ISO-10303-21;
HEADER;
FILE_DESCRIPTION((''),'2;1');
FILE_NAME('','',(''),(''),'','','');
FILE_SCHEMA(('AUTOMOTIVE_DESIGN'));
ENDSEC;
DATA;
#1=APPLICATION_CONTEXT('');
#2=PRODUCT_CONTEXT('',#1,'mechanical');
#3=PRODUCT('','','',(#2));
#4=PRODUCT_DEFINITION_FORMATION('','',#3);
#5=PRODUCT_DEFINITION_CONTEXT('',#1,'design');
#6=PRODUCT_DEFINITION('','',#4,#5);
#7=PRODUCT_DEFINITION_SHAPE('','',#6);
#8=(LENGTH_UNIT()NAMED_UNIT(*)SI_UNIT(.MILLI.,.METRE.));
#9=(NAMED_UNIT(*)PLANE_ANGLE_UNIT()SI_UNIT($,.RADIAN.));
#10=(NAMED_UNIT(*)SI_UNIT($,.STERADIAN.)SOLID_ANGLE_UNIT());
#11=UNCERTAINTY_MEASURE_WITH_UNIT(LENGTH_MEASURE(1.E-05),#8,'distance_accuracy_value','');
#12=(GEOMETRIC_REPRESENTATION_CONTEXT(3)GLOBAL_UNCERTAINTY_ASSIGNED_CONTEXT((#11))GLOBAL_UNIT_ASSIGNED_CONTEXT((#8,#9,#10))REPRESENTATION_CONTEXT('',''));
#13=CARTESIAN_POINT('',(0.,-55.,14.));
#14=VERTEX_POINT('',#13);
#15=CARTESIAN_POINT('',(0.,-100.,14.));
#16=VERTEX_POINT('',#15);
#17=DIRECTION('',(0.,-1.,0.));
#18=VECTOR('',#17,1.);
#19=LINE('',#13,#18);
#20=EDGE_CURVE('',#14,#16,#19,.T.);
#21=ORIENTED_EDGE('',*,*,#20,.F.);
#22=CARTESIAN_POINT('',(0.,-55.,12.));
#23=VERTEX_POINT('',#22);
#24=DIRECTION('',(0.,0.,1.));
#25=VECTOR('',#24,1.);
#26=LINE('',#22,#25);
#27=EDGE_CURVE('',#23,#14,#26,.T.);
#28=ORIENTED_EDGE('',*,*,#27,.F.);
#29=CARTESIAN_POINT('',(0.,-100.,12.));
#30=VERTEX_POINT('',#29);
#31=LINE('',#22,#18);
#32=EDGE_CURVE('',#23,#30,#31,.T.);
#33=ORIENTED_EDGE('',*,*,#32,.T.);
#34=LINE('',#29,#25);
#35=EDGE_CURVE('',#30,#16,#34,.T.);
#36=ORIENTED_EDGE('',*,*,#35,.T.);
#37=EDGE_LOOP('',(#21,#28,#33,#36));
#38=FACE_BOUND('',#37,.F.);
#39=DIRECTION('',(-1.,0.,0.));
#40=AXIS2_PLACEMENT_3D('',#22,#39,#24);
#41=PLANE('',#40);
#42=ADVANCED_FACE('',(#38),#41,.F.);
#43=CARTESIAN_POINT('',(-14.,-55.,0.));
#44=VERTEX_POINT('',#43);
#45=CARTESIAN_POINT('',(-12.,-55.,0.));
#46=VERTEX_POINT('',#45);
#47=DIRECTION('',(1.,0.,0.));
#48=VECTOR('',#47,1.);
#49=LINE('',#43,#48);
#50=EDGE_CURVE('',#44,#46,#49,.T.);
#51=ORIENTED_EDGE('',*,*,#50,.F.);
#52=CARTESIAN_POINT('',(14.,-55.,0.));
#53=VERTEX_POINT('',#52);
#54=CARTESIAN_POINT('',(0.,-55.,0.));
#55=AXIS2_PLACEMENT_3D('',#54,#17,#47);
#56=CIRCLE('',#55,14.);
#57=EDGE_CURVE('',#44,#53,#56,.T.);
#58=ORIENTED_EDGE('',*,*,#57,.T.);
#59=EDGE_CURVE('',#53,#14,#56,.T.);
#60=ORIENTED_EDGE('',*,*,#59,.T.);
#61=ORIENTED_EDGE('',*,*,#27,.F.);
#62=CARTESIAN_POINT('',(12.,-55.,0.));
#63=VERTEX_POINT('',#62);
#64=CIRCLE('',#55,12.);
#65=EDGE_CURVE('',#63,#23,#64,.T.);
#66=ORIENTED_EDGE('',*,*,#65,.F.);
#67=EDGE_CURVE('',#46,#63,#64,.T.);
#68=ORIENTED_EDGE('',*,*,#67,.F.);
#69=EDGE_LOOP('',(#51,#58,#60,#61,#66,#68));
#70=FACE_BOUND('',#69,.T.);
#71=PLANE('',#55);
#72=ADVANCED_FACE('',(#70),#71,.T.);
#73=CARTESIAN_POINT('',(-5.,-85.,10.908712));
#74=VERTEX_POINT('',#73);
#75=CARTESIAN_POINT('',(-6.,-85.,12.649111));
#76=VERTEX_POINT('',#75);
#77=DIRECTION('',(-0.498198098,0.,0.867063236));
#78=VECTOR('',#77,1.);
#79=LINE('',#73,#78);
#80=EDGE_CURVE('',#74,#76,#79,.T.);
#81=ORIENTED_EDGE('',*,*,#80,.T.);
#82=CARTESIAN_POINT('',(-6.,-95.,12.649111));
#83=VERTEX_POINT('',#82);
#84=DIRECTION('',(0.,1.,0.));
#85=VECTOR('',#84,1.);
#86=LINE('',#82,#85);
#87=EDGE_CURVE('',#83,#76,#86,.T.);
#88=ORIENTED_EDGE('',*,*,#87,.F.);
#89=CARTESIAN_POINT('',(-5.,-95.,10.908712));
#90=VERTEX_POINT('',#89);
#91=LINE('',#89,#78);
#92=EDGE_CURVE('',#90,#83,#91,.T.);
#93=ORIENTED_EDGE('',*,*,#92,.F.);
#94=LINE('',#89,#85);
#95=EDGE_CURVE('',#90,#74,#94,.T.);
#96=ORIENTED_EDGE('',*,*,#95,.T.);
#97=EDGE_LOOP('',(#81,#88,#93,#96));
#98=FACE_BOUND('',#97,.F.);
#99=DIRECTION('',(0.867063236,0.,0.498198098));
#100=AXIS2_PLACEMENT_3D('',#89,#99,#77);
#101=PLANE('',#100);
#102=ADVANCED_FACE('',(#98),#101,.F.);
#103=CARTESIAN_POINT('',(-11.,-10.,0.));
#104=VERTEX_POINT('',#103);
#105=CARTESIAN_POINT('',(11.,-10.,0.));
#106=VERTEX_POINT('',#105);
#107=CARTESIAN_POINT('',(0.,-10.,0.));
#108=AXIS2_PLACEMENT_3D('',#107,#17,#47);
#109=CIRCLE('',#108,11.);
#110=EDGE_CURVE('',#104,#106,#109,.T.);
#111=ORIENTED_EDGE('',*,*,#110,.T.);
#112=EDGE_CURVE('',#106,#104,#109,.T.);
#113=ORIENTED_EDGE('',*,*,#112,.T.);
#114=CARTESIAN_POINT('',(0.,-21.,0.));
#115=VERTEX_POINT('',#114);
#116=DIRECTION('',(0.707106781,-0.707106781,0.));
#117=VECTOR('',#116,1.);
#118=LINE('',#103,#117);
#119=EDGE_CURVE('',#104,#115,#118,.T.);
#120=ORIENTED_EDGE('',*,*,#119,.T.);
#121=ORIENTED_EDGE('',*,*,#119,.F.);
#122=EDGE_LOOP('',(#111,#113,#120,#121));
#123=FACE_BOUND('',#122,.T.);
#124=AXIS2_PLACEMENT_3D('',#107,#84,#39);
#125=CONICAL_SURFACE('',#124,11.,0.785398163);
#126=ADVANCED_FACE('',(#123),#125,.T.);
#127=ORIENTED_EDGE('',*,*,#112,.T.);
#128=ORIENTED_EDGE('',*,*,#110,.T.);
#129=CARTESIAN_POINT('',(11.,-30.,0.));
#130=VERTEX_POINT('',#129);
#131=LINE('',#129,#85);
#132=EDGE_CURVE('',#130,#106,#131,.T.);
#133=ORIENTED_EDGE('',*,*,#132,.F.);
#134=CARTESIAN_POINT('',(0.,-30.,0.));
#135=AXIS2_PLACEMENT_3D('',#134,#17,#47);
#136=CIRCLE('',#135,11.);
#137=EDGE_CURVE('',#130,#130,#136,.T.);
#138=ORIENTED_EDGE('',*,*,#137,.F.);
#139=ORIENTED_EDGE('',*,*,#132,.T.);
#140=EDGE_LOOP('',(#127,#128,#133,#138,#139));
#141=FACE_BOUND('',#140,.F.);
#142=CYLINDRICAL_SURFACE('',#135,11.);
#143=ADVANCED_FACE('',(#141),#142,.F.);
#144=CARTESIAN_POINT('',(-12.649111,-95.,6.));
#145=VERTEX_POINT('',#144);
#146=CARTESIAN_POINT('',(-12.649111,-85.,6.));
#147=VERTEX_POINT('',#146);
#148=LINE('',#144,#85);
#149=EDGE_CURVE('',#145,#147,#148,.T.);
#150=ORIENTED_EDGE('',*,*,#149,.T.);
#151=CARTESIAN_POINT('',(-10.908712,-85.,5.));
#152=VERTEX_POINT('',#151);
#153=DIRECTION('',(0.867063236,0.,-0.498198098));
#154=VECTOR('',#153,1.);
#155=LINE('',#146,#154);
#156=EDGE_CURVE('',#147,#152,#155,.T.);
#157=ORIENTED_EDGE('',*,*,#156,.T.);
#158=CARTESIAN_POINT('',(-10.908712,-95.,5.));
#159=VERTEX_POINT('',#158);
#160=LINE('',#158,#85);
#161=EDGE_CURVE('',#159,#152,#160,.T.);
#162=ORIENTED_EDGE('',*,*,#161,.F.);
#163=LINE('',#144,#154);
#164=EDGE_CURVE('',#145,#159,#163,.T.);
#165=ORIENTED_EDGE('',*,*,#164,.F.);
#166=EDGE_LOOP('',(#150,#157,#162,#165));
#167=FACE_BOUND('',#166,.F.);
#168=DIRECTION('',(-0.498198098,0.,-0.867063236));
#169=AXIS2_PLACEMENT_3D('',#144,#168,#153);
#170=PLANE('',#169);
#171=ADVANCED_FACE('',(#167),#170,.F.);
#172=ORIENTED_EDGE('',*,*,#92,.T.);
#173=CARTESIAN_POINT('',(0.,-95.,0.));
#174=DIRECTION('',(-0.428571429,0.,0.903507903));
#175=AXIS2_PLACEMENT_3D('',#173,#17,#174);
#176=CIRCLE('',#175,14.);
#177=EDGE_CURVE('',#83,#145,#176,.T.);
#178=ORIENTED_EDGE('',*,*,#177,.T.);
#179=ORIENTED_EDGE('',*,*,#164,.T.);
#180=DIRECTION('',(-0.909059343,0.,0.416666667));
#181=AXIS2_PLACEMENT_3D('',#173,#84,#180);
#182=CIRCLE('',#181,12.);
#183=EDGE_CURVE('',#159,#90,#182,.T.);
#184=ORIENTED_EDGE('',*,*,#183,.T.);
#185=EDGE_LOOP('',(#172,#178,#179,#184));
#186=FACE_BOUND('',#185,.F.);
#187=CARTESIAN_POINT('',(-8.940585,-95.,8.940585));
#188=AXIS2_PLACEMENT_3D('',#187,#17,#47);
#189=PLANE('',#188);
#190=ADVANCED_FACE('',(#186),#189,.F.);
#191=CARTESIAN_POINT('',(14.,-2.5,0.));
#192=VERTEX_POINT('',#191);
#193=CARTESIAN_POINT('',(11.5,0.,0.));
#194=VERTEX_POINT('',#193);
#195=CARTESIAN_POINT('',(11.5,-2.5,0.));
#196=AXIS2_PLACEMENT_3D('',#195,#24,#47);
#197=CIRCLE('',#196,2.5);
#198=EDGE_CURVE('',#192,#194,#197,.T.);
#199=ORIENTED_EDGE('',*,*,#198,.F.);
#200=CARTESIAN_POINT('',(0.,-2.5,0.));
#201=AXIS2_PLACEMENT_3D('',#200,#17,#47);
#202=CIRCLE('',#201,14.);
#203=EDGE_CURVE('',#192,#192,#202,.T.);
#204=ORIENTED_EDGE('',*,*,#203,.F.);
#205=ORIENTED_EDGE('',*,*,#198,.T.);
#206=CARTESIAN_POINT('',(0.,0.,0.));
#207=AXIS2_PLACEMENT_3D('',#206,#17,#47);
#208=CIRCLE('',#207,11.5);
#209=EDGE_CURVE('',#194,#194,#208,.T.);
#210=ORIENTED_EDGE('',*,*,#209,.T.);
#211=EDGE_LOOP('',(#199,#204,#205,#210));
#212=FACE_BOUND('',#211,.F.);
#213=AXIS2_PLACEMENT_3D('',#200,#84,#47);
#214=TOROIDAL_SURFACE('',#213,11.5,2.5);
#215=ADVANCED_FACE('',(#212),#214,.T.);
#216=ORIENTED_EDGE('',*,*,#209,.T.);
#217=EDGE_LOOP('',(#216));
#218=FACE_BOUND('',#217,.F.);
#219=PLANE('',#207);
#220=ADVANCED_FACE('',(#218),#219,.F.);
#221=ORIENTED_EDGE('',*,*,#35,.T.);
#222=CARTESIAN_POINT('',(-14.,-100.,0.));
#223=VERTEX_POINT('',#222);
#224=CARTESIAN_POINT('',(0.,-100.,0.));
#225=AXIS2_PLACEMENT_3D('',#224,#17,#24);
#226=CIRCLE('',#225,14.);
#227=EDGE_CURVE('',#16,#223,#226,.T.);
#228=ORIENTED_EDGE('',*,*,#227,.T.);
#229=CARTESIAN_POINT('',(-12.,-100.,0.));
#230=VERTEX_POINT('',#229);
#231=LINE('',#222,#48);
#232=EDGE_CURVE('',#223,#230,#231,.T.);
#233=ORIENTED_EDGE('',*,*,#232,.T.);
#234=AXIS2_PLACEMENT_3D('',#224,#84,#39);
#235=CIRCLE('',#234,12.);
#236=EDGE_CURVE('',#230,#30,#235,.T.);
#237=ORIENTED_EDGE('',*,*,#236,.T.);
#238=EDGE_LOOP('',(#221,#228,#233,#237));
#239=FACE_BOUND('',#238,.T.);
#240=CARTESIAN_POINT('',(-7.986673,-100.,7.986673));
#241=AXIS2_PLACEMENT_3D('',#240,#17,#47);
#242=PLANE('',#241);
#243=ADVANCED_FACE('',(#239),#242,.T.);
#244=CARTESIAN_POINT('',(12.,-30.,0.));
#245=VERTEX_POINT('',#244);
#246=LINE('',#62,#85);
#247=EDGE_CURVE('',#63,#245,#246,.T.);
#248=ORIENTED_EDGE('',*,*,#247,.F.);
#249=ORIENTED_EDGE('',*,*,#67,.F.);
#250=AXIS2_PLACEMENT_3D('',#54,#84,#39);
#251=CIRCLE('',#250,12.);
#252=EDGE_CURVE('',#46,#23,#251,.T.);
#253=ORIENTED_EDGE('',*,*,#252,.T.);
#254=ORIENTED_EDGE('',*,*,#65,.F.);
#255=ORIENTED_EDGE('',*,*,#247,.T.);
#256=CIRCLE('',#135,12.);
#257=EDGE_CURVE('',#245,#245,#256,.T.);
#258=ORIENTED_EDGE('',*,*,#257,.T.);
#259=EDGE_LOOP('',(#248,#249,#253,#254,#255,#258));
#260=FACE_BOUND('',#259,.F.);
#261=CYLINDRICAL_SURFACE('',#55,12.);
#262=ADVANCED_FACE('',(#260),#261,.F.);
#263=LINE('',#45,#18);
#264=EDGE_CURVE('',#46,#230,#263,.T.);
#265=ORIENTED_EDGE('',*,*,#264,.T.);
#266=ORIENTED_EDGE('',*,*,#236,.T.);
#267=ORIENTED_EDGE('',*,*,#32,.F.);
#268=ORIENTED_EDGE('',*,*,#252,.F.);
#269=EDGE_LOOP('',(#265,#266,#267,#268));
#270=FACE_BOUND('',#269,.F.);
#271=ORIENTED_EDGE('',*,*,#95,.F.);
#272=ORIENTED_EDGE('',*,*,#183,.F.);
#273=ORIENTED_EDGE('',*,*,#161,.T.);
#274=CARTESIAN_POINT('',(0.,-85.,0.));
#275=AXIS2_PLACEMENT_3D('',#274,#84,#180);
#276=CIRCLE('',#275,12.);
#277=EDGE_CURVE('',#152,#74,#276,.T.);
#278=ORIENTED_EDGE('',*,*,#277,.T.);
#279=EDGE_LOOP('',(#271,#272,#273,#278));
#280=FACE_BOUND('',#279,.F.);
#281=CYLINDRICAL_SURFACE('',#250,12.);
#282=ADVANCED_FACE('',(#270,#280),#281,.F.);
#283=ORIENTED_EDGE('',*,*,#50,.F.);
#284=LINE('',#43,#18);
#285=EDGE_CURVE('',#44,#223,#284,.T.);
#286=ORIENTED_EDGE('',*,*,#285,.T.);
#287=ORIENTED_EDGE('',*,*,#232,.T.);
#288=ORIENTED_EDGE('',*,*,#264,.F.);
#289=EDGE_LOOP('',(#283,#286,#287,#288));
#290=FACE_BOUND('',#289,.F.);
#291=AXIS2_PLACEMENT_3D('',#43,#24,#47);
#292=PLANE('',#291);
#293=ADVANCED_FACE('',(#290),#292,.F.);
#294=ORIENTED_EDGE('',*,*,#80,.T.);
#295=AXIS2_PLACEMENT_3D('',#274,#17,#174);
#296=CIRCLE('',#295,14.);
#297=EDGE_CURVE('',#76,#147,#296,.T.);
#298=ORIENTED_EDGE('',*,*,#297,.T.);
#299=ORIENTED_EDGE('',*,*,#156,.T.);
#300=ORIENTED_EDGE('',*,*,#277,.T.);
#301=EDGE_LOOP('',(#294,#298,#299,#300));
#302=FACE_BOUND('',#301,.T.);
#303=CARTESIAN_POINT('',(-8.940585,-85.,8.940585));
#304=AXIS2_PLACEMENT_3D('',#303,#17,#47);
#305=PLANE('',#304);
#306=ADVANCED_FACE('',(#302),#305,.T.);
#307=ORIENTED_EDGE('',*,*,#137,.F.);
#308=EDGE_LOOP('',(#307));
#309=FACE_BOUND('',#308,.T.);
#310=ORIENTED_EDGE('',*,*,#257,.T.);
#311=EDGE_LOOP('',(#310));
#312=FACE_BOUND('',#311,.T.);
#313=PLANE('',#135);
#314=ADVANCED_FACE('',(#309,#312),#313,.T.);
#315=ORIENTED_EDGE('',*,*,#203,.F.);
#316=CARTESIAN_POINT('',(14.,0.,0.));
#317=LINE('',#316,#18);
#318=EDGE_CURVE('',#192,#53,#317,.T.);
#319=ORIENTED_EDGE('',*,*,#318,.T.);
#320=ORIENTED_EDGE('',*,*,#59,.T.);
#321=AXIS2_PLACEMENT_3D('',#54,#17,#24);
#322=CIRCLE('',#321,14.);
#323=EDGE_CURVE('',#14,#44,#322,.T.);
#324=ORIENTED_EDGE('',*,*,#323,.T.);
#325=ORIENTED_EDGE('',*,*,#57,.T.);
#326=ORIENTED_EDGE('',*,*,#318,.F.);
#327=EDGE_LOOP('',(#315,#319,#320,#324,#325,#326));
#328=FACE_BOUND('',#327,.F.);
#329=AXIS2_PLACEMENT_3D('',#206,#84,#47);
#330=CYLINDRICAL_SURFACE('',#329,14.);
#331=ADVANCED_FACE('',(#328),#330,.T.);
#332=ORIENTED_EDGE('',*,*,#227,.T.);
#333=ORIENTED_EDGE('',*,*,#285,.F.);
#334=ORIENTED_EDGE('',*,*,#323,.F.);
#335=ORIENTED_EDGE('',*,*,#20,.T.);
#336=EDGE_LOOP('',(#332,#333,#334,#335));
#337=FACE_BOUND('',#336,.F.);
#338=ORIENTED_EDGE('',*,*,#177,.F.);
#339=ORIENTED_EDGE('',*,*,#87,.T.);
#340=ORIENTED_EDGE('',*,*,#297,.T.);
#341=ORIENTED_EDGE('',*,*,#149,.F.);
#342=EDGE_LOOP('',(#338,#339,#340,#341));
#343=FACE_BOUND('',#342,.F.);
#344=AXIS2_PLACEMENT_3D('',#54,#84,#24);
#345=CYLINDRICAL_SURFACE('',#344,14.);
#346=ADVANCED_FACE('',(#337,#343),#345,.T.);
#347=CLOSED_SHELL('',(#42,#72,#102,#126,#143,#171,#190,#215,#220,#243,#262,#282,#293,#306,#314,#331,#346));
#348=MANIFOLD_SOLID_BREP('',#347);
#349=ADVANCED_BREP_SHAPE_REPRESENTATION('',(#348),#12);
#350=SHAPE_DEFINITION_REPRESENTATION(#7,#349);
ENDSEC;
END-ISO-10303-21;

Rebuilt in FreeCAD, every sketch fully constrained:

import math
import FreeCAD as App
import Part
import Sketcher

V = App.Vector
Q = App.Units.Quantity


def edges_at(feature, points):
    """Names of the edges that pass closest to the given points."""
    edges = feature.Shape.Edges
    near = lambda p: min(range(len(edges)), key=lambda i: edges[i].distToShape(Part.Vertex(*p))[0])
    return sorted({f"Edge{near(p) + 1}" for p in points})


def add_polygon(sketch, points):
    """Adds a closed chain of lines whose ends are joined by coincident constraints."""
    first, n = sketch.GeometryCount, len(points)
    for a, b in zip(points, points[1:] + points[:1]):
        sketch.addGeometry(Part.LineSegment(App.Vector(*a, 0), App.Vector(*b, 0)), False)
    for i in range(n):
        sketch.addConstraint(Sketcher.Constraint("Coincident", first + i, 2, first + (i + 1) % n, 1))

doc = App.newDocument("Part")
body = doc.addObject("PartDesign::Body", "Body")

# Sketch on XZ plane
sketch1 = doc.addObject("Sketcher::SketchObject", "Sketch")
body.addObject(sketch1)
sketch1.AttachmentSupport = (doc.XZ_Plane, [""])
sketch1.MapMode = "FlatFace"
sketch1.addGeometry(Part.Circle(V(0, 0, 0), V(0, 0, 1), 14), False)
sketch1.addConstraint(Sketcher.Constraint("Coincident", 0, 3, -1, 1))
sketch1.addConstraint(Sketcher.Constraint("Diameter", 0, Q("28 mm")))
pad1 = doc.addObject("PartDesign::Pad", "Pad")
body.addObject(pad1)
pad1.Profile = sketch1
pad1.Length = 55

# Sketch on XZ plane
sketch2 = doc.addObject("Sketcher::SketchObject", "Sketch001")
body.addObject(sketch2)
sketch2.AttachmentSupport = (doc.XZ_Plane, [""])
sketch2.MapMode = "FlatFace"
sketch2.AttachmentOffset = App.Placement(V(0, 0, 55), App.Rotation())
sketch2.addGeometry(Part.Circle(V(0, 0, 0), V(0, 0, 1), 12), False)
sketch2.addConstraint(Sketcher.Constraint("Coincident", 0, 3, -1, 1))
sketch2.addConstraint(Sketcher.Constraint("Diameter", 0, Q("24 mm")))
pocket1 = doc.addObject("PartDesign::Pocket", "Pocket")
body.addObject(pocket1)
pocket1.Profile = sketch2
pocket1.Length = 25

# Sketch on XZ plane
sketch3 = doc.addObject("Sketcher::SketchObject", "Sketch002")
body.addObject(sketch3)
sketch3.AttachmentSupport = (doc.XZ_Plane, [""])
sketch3.MapMode = "FlatFace"
sketch3.AttachmentOffset = App.Placement(V(0, 0, 30), App.Rotation())
sketch3.addGeometry(Part.Circle(V(0, 0, 0), V(0, 0, 1), 11), False)
sketch3.addConstraint(Sketcher.Constraint("Coincident", 0, 3, -1, 1))
sketch3.addConstraint(Sketcher.Constraint("Diameter", 0, Q("22 mm")))
pocket2 = doc.addObject("PartDesign::Pocket", "Pocket001")
body.addObject(pocket2)
pocket2.Profile = sketch3
pocket2.Length = 20
doc.recompute()

fillet = doc.addObject("PartDesign::Fillet", "Fillet")
body.addObject(fillet)
fillet.Base = (pocket2, edges_at(pocket2, [(-14, 0, 0)]))
fillet.Radius = 2.5

# Sketch on XY plane
sketch4 = doc.addObject("Sketcher::SketchObject", "Sketch003")
body.addObject(sketch4)
sketch4.AttachmentSupport = (doc.XY_Plane, [""])
sketch4.MapMode = "FlatFace"
add_polygon(sketch4, [(0, -21), (0, -10), (-11, -10)])  # lines 0-2
sketch4.addConstraint(Sketcher.Constraint("Vertical", 0))
sketch4.addConstraint(Sketcher.Constraint("Horizontal", 1))
sketch4.addConstraint(Sketcher.Constraint("PointOnObject", 0, 2, -2))
sketch4.addConstraint(Sketcher.Constraint("Equal", 1, 0))
sketch4.addConstraint(Sketcher.Constraint("DistanceX", 1, 2, 1, 1, Q("11 mm")))
sketch4.addConstraint(Sketcher.Constraint("DistanceY", 0, 2, -1, 1, Q("10 mm")))
revolution = doc.addObject("PartDesign::Revolution", "Revolution")
body.addObject(revolution)
revolution.Profile = sketch4
revolution.ReferenceAxis = (sketch4, ["V_Axis"])
revolution.Angle = 360

# Sketch on XZ plane
sketch5 = doc.addObject("Sketcher::SketchObject", "Sketch004")
body.addObject(sketch5)
sketch5.AttachmentSupport = (doc.XZ_Plane, [""])
sketch5.MapMode = "FlatFace"
sketch5.AttachmentOffset = App.Placement(V(0, 0, 55), App.Rotation())
sketch5.addGeometry(Part.LineSegment(V(-14, 0, 0), V(-12, 0, 0)), False)
sketch5.addGeometry(Part.ArcOfCircle(Part.Circle(V(0, 0, 0), V(0, 0, 1), 12), math.radians(90), math.radians(180)), False)
sketch5.addGeometry(Part.LineSegment(V(0, 12, 0), V(0, 14, 0)), False)
sketch5.addGeometry(Part.ArcOfCircle(Part.Circle(V(0, 0, 0), V(0, 0, 1), 14), math.radians(90), math.radians(180)), False)
sketch5.addConstraint(Sketcher.Constraint("Coincident", 0, 2, 1, 2))
sketch5.addConstraint(Sketcher.Constraint("Coincident", 1, 1, 2, 1))
sketch5.addConstraint(Sketcher.Constraint("Coincident", 2, 2, 3, 1))
sketch5.addConstraint(Sketcher.Constraint("Coincident", 3, 2, 0, 1))
sketch5.addConstraint(Sketcher.Constraint("Horizontal", 0))
sketch5.addConstraint(Sketcher.Constraint("Vertical", 2))
sketch5.addConstraint(Sketcher.Constraint("Coincident", 1, 3, -1, 1))
sketch5.addConstraint(Sketcher.Constraint("Coincident", 3, 3, -1, 1))
sketch5.addConstraint(Sketcher.Constraint("PointOnObject", 0, 2, -1))
sketch5.addConstraint(Sketcher.Constraint("PointOnObject", 1, 1, -2))
sketch5.addConstraint(Sketcher.Constraint("Radius", 1, Q("12 mm")))
sketch5.addConstraint(Sketcher.Constraint("Radius", 3, Q("14 mm")))
pad2 = doc.addObject("PartDesign::Pad", "Pad001")
body.addObject(pad2)
pad2.Profile = sketch5
pad2.Length = 45

# Sketch on XZ plane
sketch6 = doc.addObject("Sketcher::SketchObject", "Sketch005")
body.addObject(sketch6)
sketch6.AttachmentSupport = (doc.XZ_Plane, [""])
sketch6.MapMode = "FlatFace"
sketch6.AttachmentOffset = App.Placement(V(0, 0, 95), App.Rotation())
sketch6.addGeometry(Part.LineSegment(V(-12.649111, 6, 0), V(-10.908712, 5, 0)), False)
sketch6.addGeometry(Part.ArcOfCircle(Part.Circle(V(0, 0, 0), V(0, 0, 1), 12), math.radians(114.624318), math.radians(155.375682)), False)
sketch6.addGeometry(Part.LineSegment(V(-5, 10.908712, 0), V(-6, 12.649111, 0)), False)
sketch6.addGeometry(Part.ArcOfCircle(Part.Circle(V(0, 0, 0), V(0, 0, 1), 14), math.radians(115.376934), math.radians(154.623066)), False)
sketch6.addConstraint(Sketcher.Constraint("Coincident", 0, 2, 1, 2))
sketch6.addConstraint(Sketcher.Constraint("Coincident", 1, 1, 2, 1))
sketch6.addConstraint(Sketcher.Constraint("Coincident", 2, 2, 3, 1))
sketch6.addConstraint(Sketcher.Constraint("Coincident", 3, 2, 0, 1))
sketch6.addConstraint(Sketcher.Constraint("Coincident", 1, 3, -1, 1))
sketch6.addConstraint(Sketcher.Constraint("Coincident", 3, 3, -1, 1))
sketch6.addConstraint(Sketcher.Constraint("Equal", 0, 2))
sketch6.addConstraint(Sketcher.Constraint("Radius", 1, Q("12 mm")))
sketch6.addConstraint(Sketcher.Constraint("Radius", 3, Q("14 mm")))
sketch6.addConstraint(Sketcher.Constraint("DistanceY", -1, 1, 0, 2, Q("5 mm")))
sketch6.addConstraint(Sketcher.Constraint("DistanceX", 1, 1, -1, 1, Q("5 mm")))
sketch6.addConstraint(Sketcher.Constraint("DistanceX", 2, 2, -1, 1, Q("6 mm")))
pocket3 = doc.addObject("PartDesign::Pocket", "Pocket002")
body.addObject(pocket3)
pocket3.Profile = sketch6
pocket3.Length = 10

doc.recompute()
